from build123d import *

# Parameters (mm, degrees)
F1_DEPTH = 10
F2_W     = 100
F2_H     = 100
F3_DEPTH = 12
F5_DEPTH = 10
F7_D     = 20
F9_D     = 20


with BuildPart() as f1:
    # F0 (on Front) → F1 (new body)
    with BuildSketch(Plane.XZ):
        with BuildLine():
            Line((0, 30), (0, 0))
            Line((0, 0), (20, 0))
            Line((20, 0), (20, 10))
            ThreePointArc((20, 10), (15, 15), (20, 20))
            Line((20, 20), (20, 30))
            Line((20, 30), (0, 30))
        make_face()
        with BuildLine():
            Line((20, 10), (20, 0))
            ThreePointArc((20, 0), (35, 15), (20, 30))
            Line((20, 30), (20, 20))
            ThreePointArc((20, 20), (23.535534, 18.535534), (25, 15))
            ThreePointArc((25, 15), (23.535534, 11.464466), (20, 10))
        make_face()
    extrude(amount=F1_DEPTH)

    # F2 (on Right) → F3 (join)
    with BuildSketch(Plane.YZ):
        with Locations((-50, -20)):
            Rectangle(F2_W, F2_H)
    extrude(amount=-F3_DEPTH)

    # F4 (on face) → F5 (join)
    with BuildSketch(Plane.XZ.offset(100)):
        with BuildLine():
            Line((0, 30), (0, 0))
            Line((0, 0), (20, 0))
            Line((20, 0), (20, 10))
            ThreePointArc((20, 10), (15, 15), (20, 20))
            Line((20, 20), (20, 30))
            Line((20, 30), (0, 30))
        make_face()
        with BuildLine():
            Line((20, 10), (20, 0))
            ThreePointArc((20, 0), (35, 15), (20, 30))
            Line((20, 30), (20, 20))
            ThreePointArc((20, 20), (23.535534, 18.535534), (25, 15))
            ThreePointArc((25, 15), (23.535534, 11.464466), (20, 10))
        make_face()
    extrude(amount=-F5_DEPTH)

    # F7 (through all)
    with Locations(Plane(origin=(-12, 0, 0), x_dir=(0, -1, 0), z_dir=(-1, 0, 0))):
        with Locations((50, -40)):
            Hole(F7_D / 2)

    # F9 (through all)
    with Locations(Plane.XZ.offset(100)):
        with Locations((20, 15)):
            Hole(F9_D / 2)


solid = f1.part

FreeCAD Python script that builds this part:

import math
import FreeCAD as App
import Part
import Sketcher
Q = App.Units.Quantity


def add_polygon(sketch, points):
    """Adds a closed chain of lines whose ends are joined by coincident constraints."""
    first, n = sketch.GeometryCount, len(points)
    for a, b in zip(points, points[1:] + points[:1]):
        sketch.addGeometry(Part.LineSegment(App.Vector(*a, 0), App.Vector(*b, 0)), False)
    for i in range(n):
        sketch.addConstraint(Sketcher.Constraint("Coincident", first + i, 2, first + (i + 1) % n, 1))

doc = App.newDocument("Part")
body = doc.addObject("PartDesign::Body", "Body")

# Sketch on XZ plane
sketch1 = doc.addObject("Sketcher::SketchObject", "Sketch")
body.addObject(sketch1)
sketch1.AttachmentSupport = (doc.XZ_Plane, [""])
sketch1.MapMode = "FlatFace"
sketch1.addGeometry([
    Part.LineSegment(App.Vector(0, 30, 0), App.Vector(0, 0, 0)),  # 0
    Part.LineSegment(App.Vector(0, 0, 0), App.Vector(20, 0, 0)),  # 1
    Part.ArcOfCircle(Part.Circle(App.Vector(20, 15, 0), App.Vector(0, 0, 1), 15), math.radians(-90), math.radians(90)),  # 2
    Part.LineSegment(App.Vector(20, 30, 0), App.Vector(0, 30, 0)),  # 3
    Part.ArcOfCircle(Part.Circle(App.Vector(20, 15, 0), App.Vector(0, 0, 1), 5), math.radians(90), math.radians(270)),  # 4
    Part.ArcOfCircle(Part.Circle(App.Vector(20, 15, 0), App.Vector(0, 0, 1), 5), math.radians(0), math.radians(90)),  # 5
    Part.ArcOfCircle(Part.Circle(App.Vector(20, 15, 0), App.Vector(0, 0, 1), 5), math.radians(-90), math.radians(0)),  # 6
], False)
sketch1.addConstraint([
    Sketcher.Constraint("Coincident", 0, 2, 1, 1),
    Sketcher.Constraint("Tangent", 1, 2, 2, 1),
    Sketcher.Constraint("Tangent", 2, 2, 3, 1),
    Sketcher.Constraint("Coincident", 3, 2, 0, 1),
    Sketcher.Constraint("Tangent", 4, 1, 5, 2),
    Sketcher.Constraint("Tangent", 5, 1, 6, 2),
    Sketcher.Constraint("Tangent", 6, 1, 4, 2),
    Sketcher.Constraint("Vertical", 0),
    Sketcher.Constraint("Horizontal", 1),
    Sketcher.Constraint("Horizontal", 3),
    Sketcher.Constraint("Coincident", 0, 2, -1, 1),
    Sketcher.Constraint("Coincident", 4, 3, 2, 3),
    Sketcher.Constraint("Horizontal", 6, 3, 5, 1),
    Sketcher.Constraint("Vertical", 2, 2, 4, 1),
    Sketcher.Constraint("Vertical", 4, 1, 6, 1),
    Sketcher.Constraint("Radius", 2, Q("15 mm")),
    Sketcher.Constraint("Radius", 4, Q("5 mm")),
    Sketcher.Constraint("DistanceX", 1, 1, 1, 2, Q("20 mm")),
])
pad1 = doc.addObject("PartDesign::Pad", "Pad")
body.addObject(pad1)
pad1.Profile = sketch1
pad1.Length = 10

# Sketch on YZ plane
sketch2 = doc.addObject("Sketcher::SketchObject", "Sketch001")
body.addObject(sketch2)
sketch2.AttachmentSupport = (doc.YZ_Plane, [""])
sketch2.MapMode = "FlatFace"
add_polygon(sketch2, [(-100, 30), (-100, -70), (0, -70), (0, 30)])  # lines 0-3
sketch2.addConstraint([
    Sketcher.Constraint("Vertical", 0),
    Sketcher.Constraint("Horizontal", 1),
    Sketcher.Constraint("Vertical", 2),
    Sketcher.Constraint("Horizontal", 3),
    Sketcher.Constraint("PointOnObject", 1, 2, -2),
    Sketcher.Constraint("Equal", 3, 0),
    Sketcher.Constraint("DistanceX", 1, 1, 1, 2, Q("100 mm")),
    Sketcher.Constraint("DistanceY", 0, 2, -1, 1, Q("70 mm")),
])
pad2 = doc.addObject("PartDesign::Pad", "Pad001")
body.addObject(pad2)
pad2.Profile = sketch2
pad2.Length = 12
pad2.Reversed = True

# Sketch on XZ plane
sketch3 = doc.addObject("Sketcher::SketchObject", "Sketch002")
body.addObject(sketch3)
sketch3.AttachmentSupport = (doc.XZ_Plane, [""])
sketch3.MapMode = "FlatFace"
sketch3.AttachmentOffset = App.Placement(App.Vector(0, 0, 100), App.Rotation())
sketch3.addGeometry([
    Part.LineSegment(App.Vector(0, 30, 0), App.Vector(0, 0, 0)),  # 0
    Part.LineSegment(App.Vector(0, 0, 0), App.Vector(20, 0, 0)),  # 1
    Part.ArcOfCircle(Part.Circle(App.Vector(20, 15, 0), App.Vector(0, 0, 1), 15), math.radians(-90), math.radians(90)),  # 2
    Part.LineSegment(App.Vector(20, 30, 0), App.Vector(0, 30, 0)),  # 3
    Part.ArcOfCircle(Part.Circle(App.Vector(20, 15, 0), App.Vector(0, 0, 1), 5), math.radians(90), math.radians(270)),  # 4
    Part.ArcOfCircle(Part.Circle(App.Vector(20, 15, 0), App.Vector(0, 0, 1), 5), math.radians(0), math.radians(90)),  # 5
    Part.ArcOfCircle(Part.Circle(App.Vector(20, 15, 0), App.Vector(0, 0, 1), 5), math.radians(-90), math.radians(0)),  # 6
], False)
sketch3.addConstraint([
    Sketcher.Constraint("Coincident", 0, 2, 1, 1),
    Sketcher.Constraint("Tangent", 1, 2, 2, 1),
    Sketcher.Constraint("Tangent", 2, 2, 3, 1),
    Sketcher.Constraint("Coincident", 3, 2, 0, 1),
    Sketcher.Constraint("Tangent", 4, 1, 5, 2),
    Sketcher.Constraint("Tangent", 5, 1, 6, 2),
    Sketcher.Constraint("Tangent", 6, 1, 4, 2),
    Sketcher.Constraint("Vertical", 0),
    Sketcher.Constraint("Horizontal", 1),
    Sketcher.Constraint("Horizontal", 3),
    Sketcher.Constraint("Coincident", 0, 2, -1, 1),
    Sketcher.Constraint("Coincident", 4, 3, 2, 3),
    Sketcher.Constraint("Horizontal", 6, 3, 5, 1),
    Sketcher.Constraint("Vertical", 2, 2, 4, 1),
    Sketcher.Constraint("Vertical", 4, 1, 6, 1),
    Sketcher.Constraint("Radius", 2, Q("15 mm")),
    Sketcher.Constraint("Radius", 4, Q("5 mm")),
    Sketcher.Constraint("DistanceX", 1, 1, 1, 2, Q("20 mm")),
])
pad3 = doc.addObject("PartDesign::Pad", "Pad002")
body.addObject(pad3)
pad3.Profile = sketch3
pad3.Length = 10
pad3.Reversed = True

# Sketch on YZ plane
sketch4 = doc.addObject("Sketcher::SketchObject", "Sketch003")
body.addObject(sketch4)
sketch4.AttachmentSupport = (doc.YZ_Plane, [""])
sketch4.MapMode = "FlatFace"
sketch4.AttachmentOffset = App.Placement(App.Vector(0, 0, -12), App.Rotation())
sketch4.addGeometry(Part.Circle(App.Vector(-50, -40, 0), App.Vector(0, 0, 1), 10), False)
sketch4.addConstraint([
    Sketcher.Constraint("Diameter", 0, Q("20 mm")),
    Sketcher.Constraint("DistanceX", 0, 3, -1, 1, Q("50 mm")),
    Sketcher.Constraint("DistanceY", 0, 3, -1, 1, Q("40 mm")),
])
doc.recompute()
hole = doc.addObject("PartDesign::Hole", "Hole")
body.addObject(hole)
hole.Profile = sketch4
hole.ThreadType = "None"
hole.Diameter = 20
hole.DepthType = "ThroughAll"
hole.Reversed = True

# Sketch on XZ plane
sketch5 = doc.addObject("Sketcher::SketchObject", "Sketch004")
body.addObject(sketch5)
sketch5.AttachmentSupport = (doc.XZ_Plane, [""])
sketch5.MapMode = "FlatFace"
sketch5.AttachmentOffset = App.Placement(App.Vector(0, 0, 100), App.Rotation())
sketch5.addGeometry(Part.Circle(App.Vector(20, 15, 0), App.Vector(0, 0, 1), 10), False)
sketch5.addConstraint([
    Sketcher.Constraint("Diameter", 0, Q("20 mm")),
    Sketcher.Constraint("DistanceX", -1, 1, 0, 3, Q("20 mm")),
    Sketcher.Constraint("DistanceY", -1, 1, 0, 3, Q("15 mm")),
])
doc.recompute()
hole2 = doc.addObject("PartDesign::Hole", "Hole001")
body.addObject(hole2)
hole2.Profile = sketch5
hole2.ThreadType = "None"
hole2.Diameter = 20
hole2.DepthType = "ThroughAll"

doc.recompute()
